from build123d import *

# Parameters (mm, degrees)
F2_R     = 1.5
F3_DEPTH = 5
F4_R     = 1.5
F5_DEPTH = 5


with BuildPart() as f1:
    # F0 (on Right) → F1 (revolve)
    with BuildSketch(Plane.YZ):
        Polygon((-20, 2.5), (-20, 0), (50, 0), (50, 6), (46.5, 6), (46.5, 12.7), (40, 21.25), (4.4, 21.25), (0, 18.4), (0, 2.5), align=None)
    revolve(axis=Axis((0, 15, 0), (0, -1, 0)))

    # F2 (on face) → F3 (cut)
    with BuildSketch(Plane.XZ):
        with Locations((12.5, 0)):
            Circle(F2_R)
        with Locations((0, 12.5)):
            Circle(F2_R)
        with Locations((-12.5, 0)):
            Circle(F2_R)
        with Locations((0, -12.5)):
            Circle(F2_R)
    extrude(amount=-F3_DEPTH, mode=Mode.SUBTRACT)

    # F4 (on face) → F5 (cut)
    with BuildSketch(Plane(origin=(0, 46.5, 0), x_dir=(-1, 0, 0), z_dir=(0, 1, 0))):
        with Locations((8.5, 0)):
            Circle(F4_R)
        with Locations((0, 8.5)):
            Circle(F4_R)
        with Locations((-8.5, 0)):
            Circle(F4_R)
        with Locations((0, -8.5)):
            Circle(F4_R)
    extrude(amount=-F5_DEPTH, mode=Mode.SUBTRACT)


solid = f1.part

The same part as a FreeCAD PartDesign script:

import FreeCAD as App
import Part
import Sketcher
from FreeCAD import Vector
Q = App.Units.Quantity


def add_polygon(sketch, points):
    """Adds a closed chain of lines whose ends are joined by coincident constraints."""
    first, n = sketch.GeometryCount, len(points)
    for a, b in zip(points, points[1:] + points[:1]):
        sketch.addGeometry(Part.LineSegment(App.Vector(*a, 0), App.Vector(*b, 0)), False)
    for i in range(n):
        sketch.addConstraint(Sketcher.Constraint("Coincident", first + i, 2, first + (i + 1) % n, 1))

doc = App.newDocument("Part")
body = doc.addObject("PartDesign::Body", "Body")

# Sketch on YZ plane
sketch1 = body.newObject("Sketcher::SketchObject", "Sketch")
sketch1.AttachmentSupport = (doc.getObject("YZ_Plane"), [""])
sketch1.MapMode = "FlatFace"
add_polygon(sketch1, [(-20, 2.5), (-20, 0), (50, 0), (50, 6), (46.5, 6), (46.5, 12.7), (40, 21.2), (4.4, 21.2), (0, 18.4), (0, 2.5)])  # lines 0-9
sketch1.addConstraint([
    Sketcher.Constraint("Vertical", 0),
    Sketcher.Constraint("Horizontal", 1),
    Sketcher.Constraint("Vertical", 2),
    Sketcher.Constraint("Horizontal", 3),
    Sketcher.Constraint("Vertical", 4),
    Sketcher.Constraint("Horizontal", 6),
    Sketcher.Constraint("Vertical", 8),
    Sketcher.Constraint("Horizontal", 9),
    Sketcher.Constraint("PointOnObject", 0, 2, -1),
    Sketcher.Constraint("PointOnObject", 7, 2, -2),
    Sketcher.Constraint("DistanceX", 1, 1, 1, 2, Q("70 mm")),
    Sketcher.Constraint("DistanceX", 9, 2, 9, 1, Q("20 mm")),
    Sketcher.Constraint("DistanceY", 2, 1, 2, 2, Q("6 mm")),
    Sketcher.Constraint("DistanceX", 3, 2, 3, 1, Q("3.5 mm")),
    Sketcher.Constraint("DistanceX", 6, 2, 6, 1, Q("35.6 mm")),
    Sketcher.Constraint("DistanceY", 0, 2, 0, 1, Q("2.5 mm")),
    Sketcher.Constraint("DistanceY", 4, 1, 4, 2, Q("6.7 mm")),
    Sketcher.Constraint("DistanceY", 8, 2, 8, 1, Q("15.9 mm")),
    Sketcher.Constraint("DistanceX", -1, 1, 5, 2, Q("40 mm")),
    Sketcher.Constraint("DistanceY", -1, 1, 5, 2, Q("21.25 mm")),
])
revolution = body.newObject("PartDesign::Revolution", "Revolution")
revolution.Profile = sketch1
revolution.ReferenceAxis = (sketch1, ["H_Axis"])
revolution.Angle = 360

# Sketch on XZ plane
sketch2 = body.newObject("Sketcher::SketchObject", "Sketch001")
sketch2.AttachmentSupport = (doc.getObject("XZ_Plane"), [""])
sketch2.MapMode = "FlatFace"
sketch2.addGeometry([
    Part.Circle(Vector(12.5, 0, 0), Vector(0, 0, 1), 1.5),
    Part.Circle(Vector(0, 12.5, 0), Vector(0, 0, 1), 1.5),
    Part.Circle(Vector(-12.5, 0, 0), Vector(0, 0, 1), 1.5),
    Part.Circle(Vector(0, -12.5, 0), Vector(0, 0, 1), 1.5),
], False)
sketch2.addConstraint([
    Sketcher.Constraint("Equal", 0, 1),
    Sketcher.Constraint("Equal", 1, 2),
    Sketcher.Constraint("Equal", 2, 3),
    Sketcher.Constraint("Symmetric", 0, 3, 2, 3, -1, 1),
    Sketcher.Constraint("Symmetric", 1, 3, 3, 3, -1, 1),
    Sketcher.Constraint("PointOnObject", 0, 3, -1),
    Sketcher.Constraint("PointOnObject", 1, 3, -2),
    Sketcher.Constraint("Diameter", 0, Q("3 mm")),
    Sketcher.Constraint("DistanceX", 2, 3, 0, 3, Q("25 mm")),
    Sketcher.Constraint("DistanceY", 3, 3, 1, 3, Q("25 mm")),
])
pocket1 = body.newObject("PartDesign::Pocket", "Pocket")
pocket1.Profile = sketch2
pocket1.Length = 5

# Sketch on XZ plane
sketch3 = body.newObject("Sketcher::SketchObject", "Sketch002")
sketch3.AttachmentSupport = (doc.getObject("XZ_Plane"), [""])
sketch3.MapMode = "FlatFace"
sketch3.AttachmentOffset = App.Placement(Vector(0, 0, -46.5), App.Rotation())
sketch3.addGeometry([
    Part.Circle(Vector(-8.5, 0, 0), Vector(0, 0, 1), 1.5),
    Part.Circle(Vector(0, 8.5, 0), Vector(0, 0, 1), 1.5),
    Part.Circle(Vector(8.5, 0, 0), Vector(0, 0, 1), 1.5),
    Part.Circle(Vector(0, -8.5, 0), Vector(0, 0, 1), 1.5),
], False)
sketch3.addConstraint([
    Sketcher.Constraint("Equal", 0, 1),
    Sketcher.Constraint("Equal", 1, 2),
    Sketcher.Constraint("Equal", 2, 3),
    Sketcher.Constraint("Symmetric", 0, 3, 2, 3, -1, 1),
    Sketcher.Constraint("Symmetric", 1, 3, 3, 3, -1, 1),
    Sketcher.Constraint("PointOnObject", 0, 3, -1),
    Sketcher.Constraint("PointOnObject", 1, 3, -2),
    Sketcher.Constraint("Diameter", 0, Q("3 mm")),
    Sketcher.Constraint("DistanceX", 0, 3, 2, 3, Q("17 mm")),
    Sketcher.Constraint("DistanceY", 3, 3, 1, 3, Q("17 mm")),
])
pocket2 = body.newObject("PartDesign::Pocket", "Pocket001")
pocket2.Profile = sketch3
pocket2.Length = 5
pocket2.Reversed = True

doc.recompute()
